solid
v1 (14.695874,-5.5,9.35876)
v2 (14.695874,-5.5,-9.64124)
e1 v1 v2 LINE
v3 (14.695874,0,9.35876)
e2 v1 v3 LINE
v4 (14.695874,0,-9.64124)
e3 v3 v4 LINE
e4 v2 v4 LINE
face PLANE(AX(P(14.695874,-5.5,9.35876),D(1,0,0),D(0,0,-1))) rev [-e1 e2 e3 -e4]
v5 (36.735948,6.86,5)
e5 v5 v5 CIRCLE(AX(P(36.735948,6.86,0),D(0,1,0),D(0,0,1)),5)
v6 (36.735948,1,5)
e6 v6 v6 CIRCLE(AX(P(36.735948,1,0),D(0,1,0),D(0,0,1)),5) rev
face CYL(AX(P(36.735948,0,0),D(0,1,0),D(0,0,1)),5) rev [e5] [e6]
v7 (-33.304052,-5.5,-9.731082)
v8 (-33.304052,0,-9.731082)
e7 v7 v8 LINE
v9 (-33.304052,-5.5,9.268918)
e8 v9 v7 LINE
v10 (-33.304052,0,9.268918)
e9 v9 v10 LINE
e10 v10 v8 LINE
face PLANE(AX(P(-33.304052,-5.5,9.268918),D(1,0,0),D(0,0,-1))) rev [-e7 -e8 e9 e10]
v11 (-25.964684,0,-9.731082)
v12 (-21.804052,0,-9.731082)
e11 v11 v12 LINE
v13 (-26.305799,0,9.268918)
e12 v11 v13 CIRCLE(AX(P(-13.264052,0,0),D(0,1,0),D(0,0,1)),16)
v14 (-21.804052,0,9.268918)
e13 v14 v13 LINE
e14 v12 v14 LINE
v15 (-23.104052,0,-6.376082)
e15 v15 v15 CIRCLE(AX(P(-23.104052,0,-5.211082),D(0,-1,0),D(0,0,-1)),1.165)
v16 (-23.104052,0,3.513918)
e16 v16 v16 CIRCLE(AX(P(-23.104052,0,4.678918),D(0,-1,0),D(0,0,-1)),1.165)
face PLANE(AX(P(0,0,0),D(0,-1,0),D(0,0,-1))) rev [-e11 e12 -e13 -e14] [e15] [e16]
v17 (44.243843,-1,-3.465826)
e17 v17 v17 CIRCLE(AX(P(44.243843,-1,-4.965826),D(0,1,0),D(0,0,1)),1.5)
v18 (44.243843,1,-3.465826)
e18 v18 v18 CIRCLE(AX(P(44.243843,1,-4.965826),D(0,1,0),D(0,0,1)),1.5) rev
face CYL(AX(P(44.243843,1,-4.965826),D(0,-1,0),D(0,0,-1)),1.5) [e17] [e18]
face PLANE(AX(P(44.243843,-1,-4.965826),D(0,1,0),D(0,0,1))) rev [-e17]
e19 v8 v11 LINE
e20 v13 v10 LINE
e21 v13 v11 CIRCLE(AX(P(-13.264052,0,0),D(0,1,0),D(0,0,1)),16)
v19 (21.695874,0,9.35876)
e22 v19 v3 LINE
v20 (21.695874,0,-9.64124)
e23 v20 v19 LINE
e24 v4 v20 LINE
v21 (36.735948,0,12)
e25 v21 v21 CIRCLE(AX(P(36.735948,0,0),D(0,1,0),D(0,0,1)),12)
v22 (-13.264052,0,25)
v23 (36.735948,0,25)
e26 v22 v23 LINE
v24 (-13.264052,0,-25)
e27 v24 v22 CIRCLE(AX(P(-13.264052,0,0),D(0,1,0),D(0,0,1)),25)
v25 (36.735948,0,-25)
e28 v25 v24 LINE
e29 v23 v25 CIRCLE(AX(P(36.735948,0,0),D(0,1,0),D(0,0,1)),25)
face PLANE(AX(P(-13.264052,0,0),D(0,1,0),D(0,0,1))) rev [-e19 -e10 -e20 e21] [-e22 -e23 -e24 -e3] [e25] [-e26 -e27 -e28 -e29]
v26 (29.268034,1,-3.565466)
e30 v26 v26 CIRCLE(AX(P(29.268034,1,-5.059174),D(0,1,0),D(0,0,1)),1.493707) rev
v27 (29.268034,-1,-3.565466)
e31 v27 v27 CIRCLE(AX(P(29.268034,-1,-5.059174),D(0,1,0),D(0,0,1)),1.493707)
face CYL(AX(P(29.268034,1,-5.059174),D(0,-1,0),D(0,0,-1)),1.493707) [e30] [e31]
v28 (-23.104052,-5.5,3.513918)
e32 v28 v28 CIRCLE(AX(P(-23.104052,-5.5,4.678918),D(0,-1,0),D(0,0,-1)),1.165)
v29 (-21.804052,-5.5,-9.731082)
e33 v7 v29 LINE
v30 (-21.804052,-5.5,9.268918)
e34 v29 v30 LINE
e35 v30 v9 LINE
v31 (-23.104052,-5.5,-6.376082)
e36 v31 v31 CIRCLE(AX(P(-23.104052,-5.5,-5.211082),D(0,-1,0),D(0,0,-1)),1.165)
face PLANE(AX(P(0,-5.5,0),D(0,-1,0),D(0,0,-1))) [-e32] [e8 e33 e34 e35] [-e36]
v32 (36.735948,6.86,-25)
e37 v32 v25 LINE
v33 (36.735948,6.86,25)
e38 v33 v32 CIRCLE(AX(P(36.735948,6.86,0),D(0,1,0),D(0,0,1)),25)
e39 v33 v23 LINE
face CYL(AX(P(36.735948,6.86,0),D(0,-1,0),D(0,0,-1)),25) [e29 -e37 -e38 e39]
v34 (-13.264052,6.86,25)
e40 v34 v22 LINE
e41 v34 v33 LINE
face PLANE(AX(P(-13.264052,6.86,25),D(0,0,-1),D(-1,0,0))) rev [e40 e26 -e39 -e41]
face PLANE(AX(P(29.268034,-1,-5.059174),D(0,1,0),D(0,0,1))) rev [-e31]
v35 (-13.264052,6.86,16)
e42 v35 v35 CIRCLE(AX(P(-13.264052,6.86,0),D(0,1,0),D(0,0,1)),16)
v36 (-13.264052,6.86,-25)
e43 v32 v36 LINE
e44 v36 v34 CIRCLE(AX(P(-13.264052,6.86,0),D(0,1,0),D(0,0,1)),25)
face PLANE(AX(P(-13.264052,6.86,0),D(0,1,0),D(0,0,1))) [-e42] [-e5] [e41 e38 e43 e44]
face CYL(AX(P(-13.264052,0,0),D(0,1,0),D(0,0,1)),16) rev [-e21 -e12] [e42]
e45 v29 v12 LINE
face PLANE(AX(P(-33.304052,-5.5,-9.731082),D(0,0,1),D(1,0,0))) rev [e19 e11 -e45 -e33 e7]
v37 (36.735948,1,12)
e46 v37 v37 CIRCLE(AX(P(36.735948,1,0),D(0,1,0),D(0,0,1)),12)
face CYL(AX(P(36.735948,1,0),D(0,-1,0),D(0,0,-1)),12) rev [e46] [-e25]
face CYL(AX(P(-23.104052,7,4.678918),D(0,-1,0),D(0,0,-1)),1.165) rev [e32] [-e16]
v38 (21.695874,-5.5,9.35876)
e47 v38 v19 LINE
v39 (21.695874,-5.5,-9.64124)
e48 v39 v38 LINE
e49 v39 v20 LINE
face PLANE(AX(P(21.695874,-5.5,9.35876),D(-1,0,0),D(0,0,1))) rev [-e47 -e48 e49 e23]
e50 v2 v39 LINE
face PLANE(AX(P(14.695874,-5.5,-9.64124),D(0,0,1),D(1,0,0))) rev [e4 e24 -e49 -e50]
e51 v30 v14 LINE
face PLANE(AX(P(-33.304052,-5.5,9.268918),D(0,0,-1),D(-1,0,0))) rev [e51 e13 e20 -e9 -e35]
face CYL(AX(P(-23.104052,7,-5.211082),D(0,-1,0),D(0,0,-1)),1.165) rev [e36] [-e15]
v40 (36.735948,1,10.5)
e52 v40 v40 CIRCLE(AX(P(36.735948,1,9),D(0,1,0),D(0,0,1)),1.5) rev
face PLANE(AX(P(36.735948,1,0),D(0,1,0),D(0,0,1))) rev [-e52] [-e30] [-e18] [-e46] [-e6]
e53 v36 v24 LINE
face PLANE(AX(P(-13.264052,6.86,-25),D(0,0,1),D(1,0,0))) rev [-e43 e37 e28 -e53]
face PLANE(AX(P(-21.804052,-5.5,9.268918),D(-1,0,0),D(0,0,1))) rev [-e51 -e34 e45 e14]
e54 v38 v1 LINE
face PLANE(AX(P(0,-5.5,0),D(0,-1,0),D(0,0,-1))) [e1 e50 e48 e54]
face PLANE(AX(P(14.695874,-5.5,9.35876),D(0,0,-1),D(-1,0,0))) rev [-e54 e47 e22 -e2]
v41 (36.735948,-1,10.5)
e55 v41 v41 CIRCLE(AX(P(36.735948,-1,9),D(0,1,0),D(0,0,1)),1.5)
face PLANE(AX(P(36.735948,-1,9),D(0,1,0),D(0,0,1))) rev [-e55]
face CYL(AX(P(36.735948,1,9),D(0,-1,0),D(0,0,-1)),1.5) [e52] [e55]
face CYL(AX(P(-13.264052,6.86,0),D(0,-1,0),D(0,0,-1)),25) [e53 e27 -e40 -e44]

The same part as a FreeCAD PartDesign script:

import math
import FreeCAD as App
import Part
import Sketcher

V = App.Vector

doc = App.newDocument("Part")
params = doc.addObject("Spreadsheet::Sheet", "Params")
for row, (alias, value) in enumerate([
    ("sketch1_radius", "25 mm"),
    ("sketch1_width", "50 mm"),
    ("pad1_length", "6.86 mm"),
    ("sketch2_diameter", "10 mm"),
    ("sketch2_diameter2", "32 mm"),
    ("pocket1_length", "6.86 mm"),
    ("sketch3_width", "7 mm"),
    ("sketch3_height", "19 mm"),
    ("sketch3_width2", "11.5 mm"),
    ("pad2_length", "5.5 mm"),
    ("sketch4_diameter", "2.33 mm"),
    ("pocket2_length", "12.5 mm"),
    ("sketch5_diameter", "24 mm"),
    ("pocket3_length", "1 mm"),
    ("sketch6_diameter", "3 mm"),
    ("pad3_length", "1 mm"),
    ("pad3_length2", "1 mm"),
], start=1):
    params.set(f"A{row}", alias)
    params.set(f"B{row}", "=" + value)
    params.setAlias(f"B{row}", alias)

body = doc.addObject("PartDesign::Body", "Body")

# Sketch on XZ plane
sketch1 = body.newObject("Sketcher::SketchObject", "Sketch")
sketch1.AttachmentSupport = (doc.getObject("XZ_Plane"), [""])
sketch1.MapMode = "FlatFace"
sketch1.addGeometry([
    Part.LineSegment(V(37, -25, 0), V(-13, -25, 0)),
    Part.ArcOfCircle(Part.Circle(V(-13, 0, 0), V(0, 0, 1), 25), math.radians(90), math.radians(270)),
    Part.LineSegment(V(-13, 25, 0), V(37, 25, 0)),
    Part.ArcOfCircle(Part.Circle(V(37, 0, 0), V(0, 0, 1), 25), math.radians(-90), math.radians(90)),
], False)
sketch1.addConstraint([
    Sketcher.Constraint("Tangent", 0, 2, 1, 2),
    Sketcher.Constraint("Tangent", 1, 1, 2, 1),
    Sketcher.Constraint("Tangent", 2, 2, 3, 2),
    Sketcher.Constraint("Tangent", 3, 1, 0, 1),
    Sketcher.Constraint("Horizontal", 0),
    Sketcher.Constraint("Horizontal", 2),
    Sketcher.Constraint("PointOnObject", 1, 3, -1),
    Sketcher.Constraint("Radius", 1, 25.0),
    Sketcher.Constraint("DistanceX", 0, 2, 0, 1, 50.0),
    Sketcher.Constraint("DistanceX", 1, 3, -1, 1, 13.264052),
])
sketch1.setExpression("Constraints[7]", "Params.sketch1_radius")
sketch1.setExpression("Constraints[8]", "Params.sketch1_width")
pad1 = body.newObject("PartDesign::Pad", "Pad")
pad1.Profile = sketch1
pad1.setExpression("Length", "Params.pad1_length")
pad1.Reversed = True

# Sketch on XZ plane
sketch2 = body.newObject("Sketcher::SketchObject", "Sketch001")
sketch2.AttachmentSupport = (doc.getObject("XZ_Plane"), [""])
sketch2.MapMode = "FlatFace"
sketch2.AttachmentOffset = App.Placement(V(0, 0, -6.86), App.Rotation())
sketch2.addGeometry([
    Part.Circle(V(37, 0, 0), V(0, 0, 1), 5),
    Part.Circle(V(-13, 0, 0), V(0, 0, 1), 16),
], False)
sketch2.addConstraint([
    Sketcher.Constraint("PointOnObject", 0, 3, -1),
    Sketcher.Constraint("PointOnObject", 1, 3, -1),
    Sketcher.Constraint("Diameter", 0, 10.0),
    Sketcher.Constraint("Diameter", 1, 32.0),
    Sketcher.Constraint("DistanceX", 1, 3, 0, 3, 50.0),
    Sketcher.Constraint("DistanceX", -1, 1, 0, 3, 36.735948),
])
sketch2.setExpression("Constraints[2]", "Params.sketch2_diameter")
sketch2.setExpression("Constraints[3]", "Params.sketch2_diameter2")
pocket1 = body.newObject("PartDesign::Pocket", "Pocket")
pocket1.Profile = sketch2
pocket1.setExpression("Length", "Params.pocket1_length")
pocket1.Reversed = True

# Sketch on XZ plane
sketch3 = body.newObject("Sketcher::SketchObject", "Sketch002")
sketch3.AttachmentSupport = (doc.getObject("XZ_Plane"), [""])
sketch3.MapMode = "FlatFace"
sketch3.addGeometry([
    Part.LineSegment(V(-33, 9, 0), V(-33, -10, 0)),  # 0
    Part.LineSegment(V(-33, -10, 0), V(-22, -10, 0)),  # 1
    Part.LineSegment(V(-22, -10, 0), V(-22, 9, 0)),  # 2
    Part.LineSegment(V(-22, 9, 0), V(-33, 9, 0)),  # 3
    Part.LineSegment(V(15, 9, 0), V(15, -10, 0)),  # 4
    Part.LineSegment(V(15, -10, 0), V(22, -10, 0)),  # 5
    Part.LineSegment(V(22, -10, 0), V(22, 9, 0)),  # 6
    Part.LineSegment(V(22, 9, 0), V(15, 9, 0)),  # 7
], False)
sketch3.addConstraint([
    Sketcher.Constraint("Coincident", 0, 2, 1, 1),
    Sketcher.Constraint("Coincident", 1, 2, 2, 1),
    Sketcher.Constraint("Coincident", 2, 2, 3, 1),
    Sketcher.Constraint("Coincident", 3, 2, 0, 1),
    Sketcher.Constraint("Coincident", 4, 2, 5, 1),
    Sketcher.Constraint("Coincident", 5, 2, 6, 1),
    Sketcher.Constraint("Coincident", 6, 2, 7, 1),
    Sketcher.Constraint("Coincident", 7, 2, 4, 1),
    Sketcher.Constraint("Vertical", 0),
    Sketcher.Constraint("Horizontal", 1),
    Sketcher.Constraint("Vertical", 2),
    Sketcher.Constraint("Horizontal", 3),
    Sketcher.Constraint("Vertical", 4),
    Sketcher.Constraint("Horizontal", 5),
    Sketcher.Constraint("Vertical", 6),
    Sketcher.Constraint("Horizontal", 7),
    Sketcher.Constraint("Equal", 2, 4),
    Sketcher.Constraint("DistanceX", 5, 1, 5, 2, 7.0),
    Sketcher.Constraint("DistanceY", 0, 2, 0, 1, 19.0),
    Sketcher.Constraint("DistanceX", 1, 1, 1, 2, 11.5),
    Sketcher.Constraint("DistanceY", 0, 2, -1, 1, 9.731082),
    Sketcher.Constraint("DistanceY", 4, 2, -1, 1, 9.64124),
    Sketcher.Constraint("DistanceX", 0, 2, -1, 1, 33.304052),
    Sketcher.Constraint("DistanceX", -1, 1, 4, 2, 14.695874),
])
sketch3.setExpression("Constraints[17]", "Params.sketch3_width")
sketch3.setExpression("Constraints[18]", "Params.sketch3_height")
sketch3.setExpression("Constraints[19]", "Params.sketch3_width2")
pad2 = body.newObject("PartDesign::Pad", "Pad001")
pad2.Profile = sketch3
pad2.setExpression("Length", "Params.pad2_length")

# Sketch on XZ plane
sketch4 = body.newObject("Sketcher::SketchObject", "Sketch003")
sketch4.AttachmentSupport = (doc.getObject("XZ_Plane"), [""])
sketch4.MapMode = "FlatFace"
sketch4.AttachmentOffset = App.Placement(V(0, 0, 5.5), App.Rotation())
sketch4.addGeometry([
    Part.Circle(V(-23.1, 4.7, 0), V(0, 0, 1), 1.2),
    Part.Circle(V(-23.1, -5.2, 0), V(0, 0, 1), 1.2),
], False)
sketch4.addConstraint([
    Sketcher.Constraint("Equal", 0, 1),
    Sketcher.Constraint("Vertical", 0, 3, 1, 3),
    Sketcher.Constraint("Diameter", 0, 2.33),
    Sketcher.Constraint("DistanceY", 1, 3, 0, 3, 9.89),
    Sketcher.Constraint("DistanceY", -1, 1, 0, 3, 4.678918),
    Sketcher.Constraint("DistanceX", 0, 3, -1, 1, 23.104052),
])
sketch4.setExpression("Constraints[2]", "Params.sketch4_diameter")
pocket2 = body.newObject("PartDesign::Pocket", "Pocket001")
pocket2.Profile = sketch4
pocket2.setExpression("Length", "Params.pocket2_length")

# Sketch on XZ plane
sketch5 = body.newObject("Sketcher::SketchObject", "Sketch004")
sketch5.AttachmentSupport = (doc.getObject("XZ_Plane"), [""])
sketch5.MapMode = "FlatFace"
sketch5.addGeometry(Part.Circle(V(37, 0, 0), V(0, 0, 1), 12), False)
sketch5.addConstraint([
    Sketcher.Constraint("PointOnObject", 0, 3, -1),
    Sketcher.Constraint("Diameter", 0, 24.0),
    Sketcher.Constraint("DistanceX", -1, 1, 0, 3, 36.735948),
])
sketch5.setExpression("Constraints[1]", "Params.sketch5_diameter")
pocket3 = body.newObject("PartDesign::Pocket", "Pocket002")
pocket3.Profile = sketch5
pocket3.setExpression("Length", "Params.pocket3_length")

# Sketch on XZ plane
sketch6 = body.newObject("Sketcher::SketchObject", "Sketch005")
sketch6.AttachmentSupport = (doc.getObject("XZ_Plane"), [""])
sketch6.MapMode = "FlatFace"
sketch6.addGeometry([
    Part.Circle(V(36.7, 9, 0), V(0, 0, 1), 1.5),
    Part.Circle(V(29.3, -5.1, 0), V(0, 0, 1), 1.5),
    Part.Circle(V(44.2, -5, 0), V(0, 0, 1), 1.5),
], False)
sketch6.addConstraint([
    Sketcher.Constraint("Equal", 0, 2),
    Sketcher.Constraint("Diameter", 0, 3.0),
    Sketcher.Constraint("DistanceY", -1, 1, 0, 3, 9.0),
    Sketcher.Constraint("Diameter", 1, 2.987415),
    Sketcher.Constraint("DistanceX", 1, 3, 2, 3, 14.975809),
    Sketcher.Constraint("DistanceX", -1, 1, 0, 3, 36.735948),
    Sketcher.Constraint("DistanceX", -1, 1, 1, 3, 29.268034),
    Sketcher.Constraint("DistanceY", 1, 3, -1, 1, 5.059174),
    Sketcher.Constraint("DistanceY", 2, 3, -1, 1, 4.965826),
])
sketch6.setExpression("Constraints[1]", "Params.sketch6_diameter")
pad3 = body.newObject("PartDesign::Pad", "Pad002")
pad3.Profile = sketch6
pad3.Type = "TwoLengths"
pad3.setExpression("Length", "Params.pad3_length")
pad3.setExpression("Length2", "Params.pad3_length2")
pad3.Reversed = True

doc.recompute()
